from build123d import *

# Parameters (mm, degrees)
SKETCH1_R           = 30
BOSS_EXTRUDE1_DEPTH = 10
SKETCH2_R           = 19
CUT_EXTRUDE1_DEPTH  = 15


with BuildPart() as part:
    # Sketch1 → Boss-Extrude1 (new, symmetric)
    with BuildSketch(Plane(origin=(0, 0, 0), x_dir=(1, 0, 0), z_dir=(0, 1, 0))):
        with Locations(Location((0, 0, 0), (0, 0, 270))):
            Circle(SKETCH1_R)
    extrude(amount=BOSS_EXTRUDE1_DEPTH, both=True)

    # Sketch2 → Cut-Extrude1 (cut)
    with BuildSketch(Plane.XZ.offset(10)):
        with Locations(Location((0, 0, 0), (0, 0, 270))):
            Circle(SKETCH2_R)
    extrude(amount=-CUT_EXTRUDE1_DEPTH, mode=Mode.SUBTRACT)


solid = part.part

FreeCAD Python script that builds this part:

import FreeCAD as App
import Part
import Sketcher

V = App.Vector
Q = App.Units.Quantity

doc = App.newDocument("Part")
body = doc.addObject("PartDesign::Body", "Body")

# Sketch on XZ plane
sketch1 = body.newObject("Sketcher::SketchObject", "Sketch")
sketch1.AttachmentSupport = (doc.getObject("XZ_Plane"), [""])
sketch1.MapMode = "FlatFace"
sketch1.addGeometry(Part.Circle(V(0, 0, 0), V(0, 0, 1), 30), False)
sketch1.addConstraint([
    Sketcher.Constraint("Coincident", 0, 3, -1, 1),
    Sketcher.Constraint("Diameter", 0, Q("60 mm")),
])
pad1 = body.newObject("PartDesign::Pad", "Pad")
pad1.Profile = sketch1
pad1.Length = 20
pad1.Midplane = True

# Sketch on XZ plane
sketch2 = body.newObject("Sketcher::SketchObject", "Sketch001")
sketch2.AttachmentSupport = (doc.getObject("XZ_Plane"), [""])
sketch2.MapMode = "FlatFace"
sketch2.AttachmentOffset = App.Placement(V(0, 0, 10), App.Rotation())
sketch2.addGeometry(Part.Circle(V(0, 0, 0), V(0, 0, 1), 19), False)
sketch2.addConstraint([
    Sketcher.Constraint("Coincident", 0, 3, -1, 1),
    Sketcher.Constraint("Diameter", 0, Q("38 mm")),
])
pocket1 = body.newObject("PartDesign::Pocket", "Pocket")
pocket1.Profile = sketch2
pocket1.Length = 15

doc.recompute()
